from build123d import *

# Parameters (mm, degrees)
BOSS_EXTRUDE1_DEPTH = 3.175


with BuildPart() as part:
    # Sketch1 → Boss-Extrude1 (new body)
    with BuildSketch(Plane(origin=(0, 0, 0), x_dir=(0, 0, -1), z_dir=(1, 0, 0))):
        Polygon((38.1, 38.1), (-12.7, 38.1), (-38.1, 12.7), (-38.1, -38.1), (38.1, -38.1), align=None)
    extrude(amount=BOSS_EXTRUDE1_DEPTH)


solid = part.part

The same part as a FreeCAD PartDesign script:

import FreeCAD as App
import Part
import Sketcher
Q = App.Units.Quantity

doc = App.newDocument("Part")
body = doc.addObject("PartDesign::Body", "Body")

sketch1 = doc.addObject("Sketcher::SketchObject", "Sketch")
body.addObject(sketch1)
sketch1.AttachmentSupport = (doc.YZ_Plane, [""])
sketch1.MapMode = "FlatFace"
sketch1.addGeometry([
    Part.LineSegment(App.Vector(38, -38, 0), App.Vector(38, 13, 0)),
    Part.LineSegment(App.Vector(38, 13, 0), App.Vector(13, 38, 0)),
    Part.LineSegment(App.Vector(13, 38, 0), App.Vector(-38, 38, 0)),
    Part.LineSegment(App.Vector(-38, 38, 0), App.Vector(-38, -38, 0)),
    Part.LineSegment(App.Vector(-38, -38, 0), App.Vector(38, -38, 0)),
], False)
sketch1.addConstraint([
    Sketcher.Constraint("Coincident", 0, 2, 1, 1),
    Sketcher.Constraint("Coincident", 1, 2, 2, 1),
    Sketcher.Constraint("Coincident", 2, 2, 3, 1),
    Sketcher.Constraint("Coincident", 3, 2, 4, 1),
    Sketcher.Constraint("Coincident", 4, 2, 0, 1),
    Sketcher.Constraint("Vertical", 0),
    Sketcher.Constraint("Horizontal", 2),
    Sketcher.Constraint("Vertical", 3),
    Sketcher.Constraint("Horizontal", 4),
    Sketcher.Constraint("Symmetric", 2, 2, 4, 2, -1, 1),
    Sketcher.Constraint("Equal", 2, 0),
    Sketcher.Constraint("Equal", 4, 3),
    Sketcher.Constraint("DistanceX", 2, 2, 2, 1, Q("2 in")),
    Sketcher.Constraint("DistanceX", 4, 1, 4, 2, Q("3 in")),
])
pad1 = doc.addObject("PartDesign::Pad", "Pad")
body.addObject(pad1)
pad1.Profile = sketch1
pad1.Length = Q("0.125 in")

doc.recompute()
